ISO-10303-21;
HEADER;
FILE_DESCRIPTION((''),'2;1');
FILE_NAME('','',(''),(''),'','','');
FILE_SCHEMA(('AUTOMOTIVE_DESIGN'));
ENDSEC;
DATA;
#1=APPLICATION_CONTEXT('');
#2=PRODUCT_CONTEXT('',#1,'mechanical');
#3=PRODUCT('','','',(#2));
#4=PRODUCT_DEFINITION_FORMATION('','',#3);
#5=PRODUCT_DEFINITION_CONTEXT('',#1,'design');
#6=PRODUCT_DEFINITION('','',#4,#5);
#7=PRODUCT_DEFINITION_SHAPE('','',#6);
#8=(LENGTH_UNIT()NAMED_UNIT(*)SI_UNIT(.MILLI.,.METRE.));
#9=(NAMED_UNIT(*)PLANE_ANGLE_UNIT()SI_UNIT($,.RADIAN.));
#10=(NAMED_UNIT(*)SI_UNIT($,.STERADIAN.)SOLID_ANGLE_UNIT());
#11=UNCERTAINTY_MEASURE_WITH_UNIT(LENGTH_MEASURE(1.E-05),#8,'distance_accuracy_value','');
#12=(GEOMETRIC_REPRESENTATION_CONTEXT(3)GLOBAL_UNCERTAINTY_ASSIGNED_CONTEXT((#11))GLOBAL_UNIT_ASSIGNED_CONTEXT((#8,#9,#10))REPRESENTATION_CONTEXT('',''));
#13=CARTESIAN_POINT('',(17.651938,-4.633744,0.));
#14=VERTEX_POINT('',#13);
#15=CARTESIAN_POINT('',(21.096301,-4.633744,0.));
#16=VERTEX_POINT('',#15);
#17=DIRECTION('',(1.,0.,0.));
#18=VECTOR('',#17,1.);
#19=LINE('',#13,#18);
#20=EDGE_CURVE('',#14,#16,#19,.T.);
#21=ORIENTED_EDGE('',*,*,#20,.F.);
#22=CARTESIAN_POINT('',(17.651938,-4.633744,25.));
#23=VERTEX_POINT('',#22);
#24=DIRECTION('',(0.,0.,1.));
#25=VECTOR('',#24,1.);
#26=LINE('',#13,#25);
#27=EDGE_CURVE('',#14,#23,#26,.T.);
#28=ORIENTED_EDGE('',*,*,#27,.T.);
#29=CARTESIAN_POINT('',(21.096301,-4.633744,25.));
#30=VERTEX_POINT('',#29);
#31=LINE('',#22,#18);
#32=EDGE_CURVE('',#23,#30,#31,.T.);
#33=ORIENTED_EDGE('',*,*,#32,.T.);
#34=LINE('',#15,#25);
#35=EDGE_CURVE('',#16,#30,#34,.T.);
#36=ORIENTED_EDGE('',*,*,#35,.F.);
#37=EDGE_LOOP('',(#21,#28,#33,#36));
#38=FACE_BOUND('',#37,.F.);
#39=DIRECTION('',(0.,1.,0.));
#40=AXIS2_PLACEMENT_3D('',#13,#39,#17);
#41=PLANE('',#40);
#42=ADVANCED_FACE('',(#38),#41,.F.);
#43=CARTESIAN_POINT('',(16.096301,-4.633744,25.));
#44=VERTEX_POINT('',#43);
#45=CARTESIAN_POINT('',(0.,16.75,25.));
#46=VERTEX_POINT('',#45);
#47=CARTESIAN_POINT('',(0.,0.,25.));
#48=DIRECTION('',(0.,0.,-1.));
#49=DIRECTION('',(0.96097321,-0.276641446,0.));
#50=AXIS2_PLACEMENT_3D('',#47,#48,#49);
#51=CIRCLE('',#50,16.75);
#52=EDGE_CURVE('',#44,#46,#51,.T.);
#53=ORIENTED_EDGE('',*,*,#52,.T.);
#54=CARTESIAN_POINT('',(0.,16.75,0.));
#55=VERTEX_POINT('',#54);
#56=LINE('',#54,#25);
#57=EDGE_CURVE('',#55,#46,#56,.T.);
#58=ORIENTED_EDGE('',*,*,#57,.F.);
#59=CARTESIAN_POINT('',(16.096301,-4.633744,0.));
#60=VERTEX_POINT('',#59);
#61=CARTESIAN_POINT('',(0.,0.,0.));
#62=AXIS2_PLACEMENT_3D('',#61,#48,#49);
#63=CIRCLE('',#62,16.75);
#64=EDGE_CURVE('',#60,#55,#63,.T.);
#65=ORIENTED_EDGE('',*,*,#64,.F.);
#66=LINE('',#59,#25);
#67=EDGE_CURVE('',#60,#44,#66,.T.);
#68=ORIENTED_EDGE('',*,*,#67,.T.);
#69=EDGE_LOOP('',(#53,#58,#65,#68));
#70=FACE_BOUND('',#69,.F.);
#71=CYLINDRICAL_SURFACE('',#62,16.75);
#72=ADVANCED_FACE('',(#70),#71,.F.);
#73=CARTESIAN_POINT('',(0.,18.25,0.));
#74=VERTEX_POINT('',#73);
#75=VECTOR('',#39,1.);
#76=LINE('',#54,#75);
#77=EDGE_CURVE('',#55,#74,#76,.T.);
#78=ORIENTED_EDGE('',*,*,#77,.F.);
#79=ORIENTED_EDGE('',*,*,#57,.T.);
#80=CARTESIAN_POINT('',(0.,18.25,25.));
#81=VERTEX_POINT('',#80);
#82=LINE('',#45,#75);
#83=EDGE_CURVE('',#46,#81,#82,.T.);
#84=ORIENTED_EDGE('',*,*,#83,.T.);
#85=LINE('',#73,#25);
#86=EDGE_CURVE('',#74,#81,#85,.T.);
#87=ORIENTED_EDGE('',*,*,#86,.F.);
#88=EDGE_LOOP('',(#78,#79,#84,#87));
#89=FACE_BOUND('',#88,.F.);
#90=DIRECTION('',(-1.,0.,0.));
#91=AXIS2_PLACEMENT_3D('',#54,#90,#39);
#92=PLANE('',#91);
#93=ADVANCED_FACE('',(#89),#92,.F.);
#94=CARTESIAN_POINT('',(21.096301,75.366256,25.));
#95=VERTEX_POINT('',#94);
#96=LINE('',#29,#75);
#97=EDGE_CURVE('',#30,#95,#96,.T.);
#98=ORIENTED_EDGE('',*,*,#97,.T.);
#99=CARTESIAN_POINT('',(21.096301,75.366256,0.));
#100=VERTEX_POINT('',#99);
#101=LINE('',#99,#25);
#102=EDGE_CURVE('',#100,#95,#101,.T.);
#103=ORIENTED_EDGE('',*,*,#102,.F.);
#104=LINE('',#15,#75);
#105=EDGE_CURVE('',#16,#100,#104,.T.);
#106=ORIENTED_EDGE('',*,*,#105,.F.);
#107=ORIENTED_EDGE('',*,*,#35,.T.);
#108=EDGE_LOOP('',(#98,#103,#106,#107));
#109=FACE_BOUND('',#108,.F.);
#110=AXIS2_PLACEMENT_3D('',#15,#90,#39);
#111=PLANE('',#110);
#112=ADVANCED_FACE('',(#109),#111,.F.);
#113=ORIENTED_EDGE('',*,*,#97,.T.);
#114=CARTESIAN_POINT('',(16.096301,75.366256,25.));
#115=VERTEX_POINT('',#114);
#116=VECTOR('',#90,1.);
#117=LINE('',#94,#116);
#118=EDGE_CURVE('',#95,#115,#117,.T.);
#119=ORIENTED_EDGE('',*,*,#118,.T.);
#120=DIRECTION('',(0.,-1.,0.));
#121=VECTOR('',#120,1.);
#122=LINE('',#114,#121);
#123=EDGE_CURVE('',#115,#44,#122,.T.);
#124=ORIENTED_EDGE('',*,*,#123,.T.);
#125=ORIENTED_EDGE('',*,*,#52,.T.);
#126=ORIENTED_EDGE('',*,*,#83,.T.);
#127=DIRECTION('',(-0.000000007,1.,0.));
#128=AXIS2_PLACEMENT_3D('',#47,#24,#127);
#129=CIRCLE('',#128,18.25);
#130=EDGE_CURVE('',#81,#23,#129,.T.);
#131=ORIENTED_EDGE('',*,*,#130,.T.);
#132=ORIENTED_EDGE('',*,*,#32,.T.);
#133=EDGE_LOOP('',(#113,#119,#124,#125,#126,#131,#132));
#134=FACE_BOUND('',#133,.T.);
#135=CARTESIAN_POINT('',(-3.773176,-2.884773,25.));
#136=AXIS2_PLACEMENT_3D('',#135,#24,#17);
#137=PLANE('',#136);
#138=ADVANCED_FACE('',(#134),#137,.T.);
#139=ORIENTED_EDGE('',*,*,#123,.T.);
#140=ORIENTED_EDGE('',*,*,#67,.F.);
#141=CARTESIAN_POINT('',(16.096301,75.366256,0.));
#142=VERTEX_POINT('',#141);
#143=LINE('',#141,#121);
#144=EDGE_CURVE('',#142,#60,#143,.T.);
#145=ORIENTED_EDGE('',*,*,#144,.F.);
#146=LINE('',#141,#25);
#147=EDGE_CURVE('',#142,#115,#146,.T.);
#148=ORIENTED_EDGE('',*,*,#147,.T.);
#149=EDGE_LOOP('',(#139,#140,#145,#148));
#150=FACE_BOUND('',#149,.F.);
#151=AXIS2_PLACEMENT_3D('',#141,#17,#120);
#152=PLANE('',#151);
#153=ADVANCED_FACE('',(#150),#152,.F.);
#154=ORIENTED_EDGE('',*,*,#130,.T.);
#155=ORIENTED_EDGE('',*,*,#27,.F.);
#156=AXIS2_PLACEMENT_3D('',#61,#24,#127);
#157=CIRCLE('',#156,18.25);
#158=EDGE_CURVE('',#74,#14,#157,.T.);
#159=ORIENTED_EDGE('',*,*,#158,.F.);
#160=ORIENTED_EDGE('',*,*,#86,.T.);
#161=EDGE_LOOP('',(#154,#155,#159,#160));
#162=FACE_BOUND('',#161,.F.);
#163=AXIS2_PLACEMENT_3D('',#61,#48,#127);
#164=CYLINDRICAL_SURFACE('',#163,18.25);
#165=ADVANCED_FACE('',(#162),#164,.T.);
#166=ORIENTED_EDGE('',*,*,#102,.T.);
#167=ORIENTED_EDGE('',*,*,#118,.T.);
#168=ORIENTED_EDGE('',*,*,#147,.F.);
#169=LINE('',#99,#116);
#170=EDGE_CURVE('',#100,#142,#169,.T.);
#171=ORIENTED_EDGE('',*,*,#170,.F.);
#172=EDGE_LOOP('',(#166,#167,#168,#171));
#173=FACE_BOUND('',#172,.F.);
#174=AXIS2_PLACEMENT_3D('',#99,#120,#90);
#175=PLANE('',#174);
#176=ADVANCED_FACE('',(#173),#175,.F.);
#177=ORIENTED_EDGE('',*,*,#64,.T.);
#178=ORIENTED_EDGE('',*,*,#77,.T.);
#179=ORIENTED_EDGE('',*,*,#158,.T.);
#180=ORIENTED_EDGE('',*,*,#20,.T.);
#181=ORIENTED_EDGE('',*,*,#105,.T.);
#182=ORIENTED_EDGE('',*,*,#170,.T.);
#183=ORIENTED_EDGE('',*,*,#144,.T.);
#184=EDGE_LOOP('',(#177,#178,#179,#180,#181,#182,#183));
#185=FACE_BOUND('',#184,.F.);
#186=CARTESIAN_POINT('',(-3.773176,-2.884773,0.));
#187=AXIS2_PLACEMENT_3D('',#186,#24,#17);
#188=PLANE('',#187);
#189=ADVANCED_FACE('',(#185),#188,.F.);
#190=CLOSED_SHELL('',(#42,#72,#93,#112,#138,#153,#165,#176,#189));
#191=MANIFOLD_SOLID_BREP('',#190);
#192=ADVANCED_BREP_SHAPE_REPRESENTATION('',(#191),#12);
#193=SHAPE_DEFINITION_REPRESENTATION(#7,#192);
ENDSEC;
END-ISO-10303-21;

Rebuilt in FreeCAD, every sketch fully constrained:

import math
import FreeCAD as App
import Part
import Sketcher

doc = App.newDocument("Part")
params = doc.addObject("Spreadsheet::Sheet", "Params")
for row, (alias, value) in enumerate([
    ("sketch1_width", "5 mm"),
    ("sketch1_height", "80 mm"),
    ("sketch1_radius", "16.75 mm"),
    ("sketch1_radius2", "18.25 mm"),
    ("pad1_length", "25 mm"),
], start=1):
    params.set(f"A{row}", alias)
    params.set(f"B{row}", "=" + value)
    params.setAlias(f"B{row}", alias)

body = doc.addObject("PartDesign::Body", "Body")

sketch1 = doc.addObject("Sketcher::SketchObject", "Sketch")
body.addObject(sketch1)
sketch1.AttachmentSupport = (doc.XY_Plane, [""])
sketch1.MapMode = "FlatFace"
sketch1.addGeometry(Part.ArcOfCircle(Part.Circle(App.Vector(0, 0, 0), App.Vector(0, 0, 1), 16.7), math.radians(90), math.radians(344)), False)
sketch1.addGeometry(Part.LineSegment(App.Vector(0, 16.8, 0), App.Vector(0, 18.2, 0)), False)
sketch1.addGeometry(Part.ArcOfCircle(Part.Circle(App.Vector(0, 0, 0), App.Vector(0, 0, 1), 18.2), math.radians(90), math.radians(345)), False)
sketch1.addGeometry(Part.LineSegment(App.Vector(17.7, -4.6, 0), App.Vector(21.1, -4.6, 0)), False)
sketch1.addGeometry(Part.LineSegment(App.Vector(21.1, -4.6, 0), App.Vector(21.1, 75.4, 0)), False)
sketch1.addGeometry(Part.LineSegment(App.Vector(21.1, 75.4, 0), App.Vector(16.1, 75.4, 0)), False)
sketch1.addGeometry(Part.LineSegment(App.Vector(16.1, 75.4, 0), App.Vector(16.1, -4.6, 0)), False)
sketch1.addConstraint(Sketcher.Constraint("Coincident", 0, 1, 1, 1))
sketch1.addConstraint(Sketcher.Constraint("Coincident", 1, 2, 2, 1))
sketch1.addConstraint(Sketcher.Constraint("Coincident", 2, 2, 3, 1))
sketch1.addConstraint(Sketcher.Constraint("Coincident", 3, 2, 4, 1))
sketch1.addConstraint(Sketcher.Constraint("Coincident", 4, 2, 5, 1))
sketch1.addConstraint(Sketcher.Constraint("Coincident", 5, 2, 6, 1))
sketch1.addConstraint(Sketcher.Constraint("Coincident", 6, 2, 0, 2))
sketch1.addConstraint(Sketcher.Constraint("Vertical", 1))
sketch1.addConstraint(Sketcher.Constraint("Horizontal", 3))
sketch1.addConstraint(Sketcher.Constraint("Vertical", 4))
sketch1.addConstraint(Sketcher.Constraint("Horizontal", 5))
sketch1.addConstraint(Sketcher.Constraint("Vertical", 6))
sketch1.addConstraint(Sketcher.Constraint("Coincident", 0, 3, -1, 1))
sketch1.addConstraint(Sketcher.Constraint("Coincident", 2, 3, -1, 1))
sketch1.addConstraint(Sketcher.Constraint("PointOnObject", 0, 1, -2))
sketch1.addConstraint(Sketcher.Constraint("Horizontal", 3, 2, 6, 2))
sketch1.addConstraint(Sketcher.Constraint("DistanceX", 5, 2, 5, 1, 5.0))
sketch1.addConstraint(Sketcher.Constraint("DistanceY", 4, 1, 4, 2, 80.0))
sketch1.addConstraint(Sketcher.Constraint("Radius", 0, 16.75))
sketch1.addConstraint(Sketcher.Constraint("Radius", 2, 18.25))
sketch1.addConstraint(Sketcher.Constraint("DistanceX", -1, 1, 3, 2, 21.096301))
sketch1.setExpression("Constraints[16]", "Params.sketch1_width")
sketch1.setExpression("Constraints[17]", "Params.sketch1_height")
sketch1.setExpression("Constraints[18]", "Params.sketch1_radius")
sketch1.setExpression("Constraints[19]", "Params.sketch1_radius2")
pad1 = doc.addObject("PartDesign::Pad", "Pad")
body.addObject(pad1)
pad1.Profile = sketch1
pad1.setExpression("Length", "Params.pad1_length")

doc.recompute()
